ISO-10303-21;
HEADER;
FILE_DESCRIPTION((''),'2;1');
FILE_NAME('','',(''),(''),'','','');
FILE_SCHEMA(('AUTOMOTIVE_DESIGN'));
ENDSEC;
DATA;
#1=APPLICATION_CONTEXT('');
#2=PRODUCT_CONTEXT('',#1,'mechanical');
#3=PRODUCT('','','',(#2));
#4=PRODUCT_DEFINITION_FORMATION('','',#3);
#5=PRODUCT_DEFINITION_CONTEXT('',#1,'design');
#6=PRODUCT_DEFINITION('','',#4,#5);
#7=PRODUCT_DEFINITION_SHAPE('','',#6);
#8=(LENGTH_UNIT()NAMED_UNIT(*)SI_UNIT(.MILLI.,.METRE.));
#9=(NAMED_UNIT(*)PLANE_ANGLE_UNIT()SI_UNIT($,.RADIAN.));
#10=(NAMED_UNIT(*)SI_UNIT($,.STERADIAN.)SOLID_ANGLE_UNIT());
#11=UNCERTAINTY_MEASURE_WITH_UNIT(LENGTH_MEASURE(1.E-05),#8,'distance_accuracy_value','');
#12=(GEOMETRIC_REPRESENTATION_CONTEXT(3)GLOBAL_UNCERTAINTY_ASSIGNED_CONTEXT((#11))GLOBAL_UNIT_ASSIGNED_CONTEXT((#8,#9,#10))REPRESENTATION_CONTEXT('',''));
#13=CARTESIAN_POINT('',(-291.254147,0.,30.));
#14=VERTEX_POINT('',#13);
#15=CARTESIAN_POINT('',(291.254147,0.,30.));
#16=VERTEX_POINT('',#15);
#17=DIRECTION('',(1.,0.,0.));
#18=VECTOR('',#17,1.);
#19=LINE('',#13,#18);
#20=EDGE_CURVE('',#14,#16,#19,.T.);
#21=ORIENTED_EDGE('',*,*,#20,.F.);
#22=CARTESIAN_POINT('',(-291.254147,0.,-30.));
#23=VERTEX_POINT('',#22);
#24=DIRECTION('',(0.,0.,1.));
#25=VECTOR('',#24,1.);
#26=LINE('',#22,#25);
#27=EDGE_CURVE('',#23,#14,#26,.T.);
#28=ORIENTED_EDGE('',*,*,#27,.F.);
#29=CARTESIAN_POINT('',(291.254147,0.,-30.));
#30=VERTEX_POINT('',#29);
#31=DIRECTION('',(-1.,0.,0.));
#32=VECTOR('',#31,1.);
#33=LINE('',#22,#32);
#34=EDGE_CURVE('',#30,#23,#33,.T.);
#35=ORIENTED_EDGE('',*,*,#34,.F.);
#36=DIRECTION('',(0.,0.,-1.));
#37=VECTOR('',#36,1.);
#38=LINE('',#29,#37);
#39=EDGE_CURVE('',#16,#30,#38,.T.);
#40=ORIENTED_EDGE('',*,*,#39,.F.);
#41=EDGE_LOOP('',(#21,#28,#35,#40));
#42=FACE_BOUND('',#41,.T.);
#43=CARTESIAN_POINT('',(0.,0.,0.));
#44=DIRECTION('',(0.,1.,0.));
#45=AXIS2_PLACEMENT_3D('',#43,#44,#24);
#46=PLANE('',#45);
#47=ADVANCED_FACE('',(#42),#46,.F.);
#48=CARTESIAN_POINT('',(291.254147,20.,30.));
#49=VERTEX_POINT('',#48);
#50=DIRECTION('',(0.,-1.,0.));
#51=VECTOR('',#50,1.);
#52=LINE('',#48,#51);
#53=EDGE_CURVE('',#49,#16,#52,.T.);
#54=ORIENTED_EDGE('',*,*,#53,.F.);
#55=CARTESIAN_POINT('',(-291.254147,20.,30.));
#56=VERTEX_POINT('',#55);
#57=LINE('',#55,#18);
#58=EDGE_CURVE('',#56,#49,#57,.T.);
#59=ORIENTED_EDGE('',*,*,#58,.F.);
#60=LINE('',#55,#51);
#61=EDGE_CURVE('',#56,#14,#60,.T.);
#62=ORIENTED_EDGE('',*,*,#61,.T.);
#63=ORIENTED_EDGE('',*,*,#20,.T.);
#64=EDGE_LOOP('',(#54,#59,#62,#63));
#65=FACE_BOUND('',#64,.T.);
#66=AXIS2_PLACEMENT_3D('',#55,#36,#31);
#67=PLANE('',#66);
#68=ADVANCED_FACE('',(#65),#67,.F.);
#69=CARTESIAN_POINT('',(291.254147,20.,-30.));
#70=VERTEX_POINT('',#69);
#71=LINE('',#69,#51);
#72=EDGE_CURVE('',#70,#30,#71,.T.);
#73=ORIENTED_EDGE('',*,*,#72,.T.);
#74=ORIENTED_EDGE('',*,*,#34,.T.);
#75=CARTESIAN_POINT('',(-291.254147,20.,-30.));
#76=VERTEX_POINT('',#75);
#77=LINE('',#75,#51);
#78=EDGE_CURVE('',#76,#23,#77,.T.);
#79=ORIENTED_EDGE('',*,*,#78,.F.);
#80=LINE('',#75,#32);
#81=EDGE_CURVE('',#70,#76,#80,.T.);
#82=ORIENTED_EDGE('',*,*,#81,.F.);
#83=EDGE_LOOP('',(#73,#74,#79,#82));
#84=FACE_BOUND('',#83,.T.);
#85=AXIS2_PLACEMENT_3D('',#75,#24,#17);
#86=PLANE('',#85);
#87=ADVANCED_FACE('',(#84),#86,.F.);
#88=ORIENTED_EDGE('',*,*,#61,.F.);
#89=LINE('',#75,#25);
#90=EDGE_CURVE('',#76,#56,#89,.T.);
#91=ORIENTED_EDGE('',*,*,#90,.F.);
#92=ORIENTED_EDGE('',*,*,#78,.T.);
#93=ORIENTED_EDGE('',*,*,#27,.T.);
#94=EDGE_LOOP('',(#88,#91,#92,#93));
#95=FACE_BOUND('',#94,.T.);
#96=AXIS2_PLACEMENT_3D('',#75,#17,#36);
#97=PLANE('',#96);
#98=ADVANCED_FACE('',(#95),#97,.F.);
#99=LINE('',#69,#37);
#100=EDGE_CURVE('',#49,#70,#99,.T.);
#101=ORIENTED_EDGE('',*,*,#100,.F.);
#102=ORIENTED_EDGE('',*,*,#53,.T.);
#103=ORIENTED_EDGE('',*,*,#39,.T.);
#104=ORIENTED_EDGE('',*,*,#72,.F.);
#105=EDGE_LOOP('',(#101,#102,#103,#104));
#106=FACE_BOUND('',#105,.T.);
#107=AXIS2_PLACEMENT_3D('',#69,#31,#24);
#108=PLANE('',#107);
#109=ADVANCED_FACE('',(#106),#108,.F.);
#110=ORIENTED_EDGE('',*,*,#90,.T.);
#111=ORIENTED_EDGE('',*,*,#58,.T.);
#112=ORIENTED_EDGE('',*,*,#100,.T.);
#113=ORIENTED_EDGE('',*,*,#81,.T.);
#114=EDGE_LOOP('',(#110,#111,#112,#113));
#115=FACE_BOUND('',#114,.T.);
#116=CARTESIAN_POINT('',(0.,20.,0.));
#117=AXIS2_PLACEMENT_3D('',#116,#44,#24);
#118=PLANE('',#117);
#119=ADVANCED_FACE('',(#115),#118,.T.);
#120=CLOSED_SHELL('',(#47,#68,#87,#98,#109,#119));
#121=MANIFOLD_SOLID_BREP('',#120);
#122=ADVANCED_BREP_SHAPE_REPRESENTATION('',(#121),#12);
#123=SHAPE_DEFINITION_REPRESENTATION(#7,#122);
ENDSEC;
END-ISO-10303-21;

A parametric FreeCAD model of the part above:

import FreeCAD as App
import Part
import Sketcher


def add_polygon(sketch, points):
    """Adds a closed chain of lines whose ends are joined by coincident constraints."""
    first, n = sketch.GeometryCount, len(points)
    for a, b in zip(points, points[1:] + points[:1]):
        sketch.addGeometry(Part.LineSegment(App.Vector(*a, 0), App.Vector(*b, 0)), False)
    for i in range(n):
        sketch.addConstraint(Sketcher.Constraint("Coincident", first + i, 2, first + (i + 1) % n, 1))

doc = App.newDocument("Part")
params = doc.addObject("Spreadsheet::Sheet", "Params")
for row, (alias, value) in enumerate([
    ("sketch1_height", "60 mm"),
    ("pad1_length", "20 mm"),
], start=1):
    params.set(f"A{row}", alias)
    params.set(f"B{row}", "=" + value)
    params.setAlias(f"B{row}", alias)

body = doc.addObject("PartDesign::Body", "Body")

# Sketch on XZ plane
sketch1 = body.newObject("Sketcher::SketchObject", "Sketch")
sketch1.AttachmentSupport = (doc.getObject("XZ_Plane"), [""])
sketch1.MapMode = "FlatFace"
add_polygon(sketch1, [(-291, -30), (-291, 30), (291, 30), (291, -30)])  # lines 0-3
sketch1.addConstraint([
    Sketcher.Constraint("Vertical", 0),
    Sketcher.Constraint("Horizontal", 1),
    Sketcher.Constraint("Vertical", 2),
    Sketcher.Constraint("Horizontal", 3),
    Sketcher.Constraint("Symmetric", 0, 2, 2, 2, -1, 1),
    Sketcher.Constraint("DistanceY", 0, 1, 0, 2, 60.0),
    Sketcher.Constraint("DistanceX", 1, 1, 1, 2, 582.508294),
])
sketch1.setExpression("Constraints[9]", "Params.sketch1_height")
pad1 = body.newObject("PartDesign::Pad", "Pad")
pad1.Profile = sketch1
pad1.setExpression("Length", "Params.pad1_length")
pad1.Reversed = True

doc.recompute()
